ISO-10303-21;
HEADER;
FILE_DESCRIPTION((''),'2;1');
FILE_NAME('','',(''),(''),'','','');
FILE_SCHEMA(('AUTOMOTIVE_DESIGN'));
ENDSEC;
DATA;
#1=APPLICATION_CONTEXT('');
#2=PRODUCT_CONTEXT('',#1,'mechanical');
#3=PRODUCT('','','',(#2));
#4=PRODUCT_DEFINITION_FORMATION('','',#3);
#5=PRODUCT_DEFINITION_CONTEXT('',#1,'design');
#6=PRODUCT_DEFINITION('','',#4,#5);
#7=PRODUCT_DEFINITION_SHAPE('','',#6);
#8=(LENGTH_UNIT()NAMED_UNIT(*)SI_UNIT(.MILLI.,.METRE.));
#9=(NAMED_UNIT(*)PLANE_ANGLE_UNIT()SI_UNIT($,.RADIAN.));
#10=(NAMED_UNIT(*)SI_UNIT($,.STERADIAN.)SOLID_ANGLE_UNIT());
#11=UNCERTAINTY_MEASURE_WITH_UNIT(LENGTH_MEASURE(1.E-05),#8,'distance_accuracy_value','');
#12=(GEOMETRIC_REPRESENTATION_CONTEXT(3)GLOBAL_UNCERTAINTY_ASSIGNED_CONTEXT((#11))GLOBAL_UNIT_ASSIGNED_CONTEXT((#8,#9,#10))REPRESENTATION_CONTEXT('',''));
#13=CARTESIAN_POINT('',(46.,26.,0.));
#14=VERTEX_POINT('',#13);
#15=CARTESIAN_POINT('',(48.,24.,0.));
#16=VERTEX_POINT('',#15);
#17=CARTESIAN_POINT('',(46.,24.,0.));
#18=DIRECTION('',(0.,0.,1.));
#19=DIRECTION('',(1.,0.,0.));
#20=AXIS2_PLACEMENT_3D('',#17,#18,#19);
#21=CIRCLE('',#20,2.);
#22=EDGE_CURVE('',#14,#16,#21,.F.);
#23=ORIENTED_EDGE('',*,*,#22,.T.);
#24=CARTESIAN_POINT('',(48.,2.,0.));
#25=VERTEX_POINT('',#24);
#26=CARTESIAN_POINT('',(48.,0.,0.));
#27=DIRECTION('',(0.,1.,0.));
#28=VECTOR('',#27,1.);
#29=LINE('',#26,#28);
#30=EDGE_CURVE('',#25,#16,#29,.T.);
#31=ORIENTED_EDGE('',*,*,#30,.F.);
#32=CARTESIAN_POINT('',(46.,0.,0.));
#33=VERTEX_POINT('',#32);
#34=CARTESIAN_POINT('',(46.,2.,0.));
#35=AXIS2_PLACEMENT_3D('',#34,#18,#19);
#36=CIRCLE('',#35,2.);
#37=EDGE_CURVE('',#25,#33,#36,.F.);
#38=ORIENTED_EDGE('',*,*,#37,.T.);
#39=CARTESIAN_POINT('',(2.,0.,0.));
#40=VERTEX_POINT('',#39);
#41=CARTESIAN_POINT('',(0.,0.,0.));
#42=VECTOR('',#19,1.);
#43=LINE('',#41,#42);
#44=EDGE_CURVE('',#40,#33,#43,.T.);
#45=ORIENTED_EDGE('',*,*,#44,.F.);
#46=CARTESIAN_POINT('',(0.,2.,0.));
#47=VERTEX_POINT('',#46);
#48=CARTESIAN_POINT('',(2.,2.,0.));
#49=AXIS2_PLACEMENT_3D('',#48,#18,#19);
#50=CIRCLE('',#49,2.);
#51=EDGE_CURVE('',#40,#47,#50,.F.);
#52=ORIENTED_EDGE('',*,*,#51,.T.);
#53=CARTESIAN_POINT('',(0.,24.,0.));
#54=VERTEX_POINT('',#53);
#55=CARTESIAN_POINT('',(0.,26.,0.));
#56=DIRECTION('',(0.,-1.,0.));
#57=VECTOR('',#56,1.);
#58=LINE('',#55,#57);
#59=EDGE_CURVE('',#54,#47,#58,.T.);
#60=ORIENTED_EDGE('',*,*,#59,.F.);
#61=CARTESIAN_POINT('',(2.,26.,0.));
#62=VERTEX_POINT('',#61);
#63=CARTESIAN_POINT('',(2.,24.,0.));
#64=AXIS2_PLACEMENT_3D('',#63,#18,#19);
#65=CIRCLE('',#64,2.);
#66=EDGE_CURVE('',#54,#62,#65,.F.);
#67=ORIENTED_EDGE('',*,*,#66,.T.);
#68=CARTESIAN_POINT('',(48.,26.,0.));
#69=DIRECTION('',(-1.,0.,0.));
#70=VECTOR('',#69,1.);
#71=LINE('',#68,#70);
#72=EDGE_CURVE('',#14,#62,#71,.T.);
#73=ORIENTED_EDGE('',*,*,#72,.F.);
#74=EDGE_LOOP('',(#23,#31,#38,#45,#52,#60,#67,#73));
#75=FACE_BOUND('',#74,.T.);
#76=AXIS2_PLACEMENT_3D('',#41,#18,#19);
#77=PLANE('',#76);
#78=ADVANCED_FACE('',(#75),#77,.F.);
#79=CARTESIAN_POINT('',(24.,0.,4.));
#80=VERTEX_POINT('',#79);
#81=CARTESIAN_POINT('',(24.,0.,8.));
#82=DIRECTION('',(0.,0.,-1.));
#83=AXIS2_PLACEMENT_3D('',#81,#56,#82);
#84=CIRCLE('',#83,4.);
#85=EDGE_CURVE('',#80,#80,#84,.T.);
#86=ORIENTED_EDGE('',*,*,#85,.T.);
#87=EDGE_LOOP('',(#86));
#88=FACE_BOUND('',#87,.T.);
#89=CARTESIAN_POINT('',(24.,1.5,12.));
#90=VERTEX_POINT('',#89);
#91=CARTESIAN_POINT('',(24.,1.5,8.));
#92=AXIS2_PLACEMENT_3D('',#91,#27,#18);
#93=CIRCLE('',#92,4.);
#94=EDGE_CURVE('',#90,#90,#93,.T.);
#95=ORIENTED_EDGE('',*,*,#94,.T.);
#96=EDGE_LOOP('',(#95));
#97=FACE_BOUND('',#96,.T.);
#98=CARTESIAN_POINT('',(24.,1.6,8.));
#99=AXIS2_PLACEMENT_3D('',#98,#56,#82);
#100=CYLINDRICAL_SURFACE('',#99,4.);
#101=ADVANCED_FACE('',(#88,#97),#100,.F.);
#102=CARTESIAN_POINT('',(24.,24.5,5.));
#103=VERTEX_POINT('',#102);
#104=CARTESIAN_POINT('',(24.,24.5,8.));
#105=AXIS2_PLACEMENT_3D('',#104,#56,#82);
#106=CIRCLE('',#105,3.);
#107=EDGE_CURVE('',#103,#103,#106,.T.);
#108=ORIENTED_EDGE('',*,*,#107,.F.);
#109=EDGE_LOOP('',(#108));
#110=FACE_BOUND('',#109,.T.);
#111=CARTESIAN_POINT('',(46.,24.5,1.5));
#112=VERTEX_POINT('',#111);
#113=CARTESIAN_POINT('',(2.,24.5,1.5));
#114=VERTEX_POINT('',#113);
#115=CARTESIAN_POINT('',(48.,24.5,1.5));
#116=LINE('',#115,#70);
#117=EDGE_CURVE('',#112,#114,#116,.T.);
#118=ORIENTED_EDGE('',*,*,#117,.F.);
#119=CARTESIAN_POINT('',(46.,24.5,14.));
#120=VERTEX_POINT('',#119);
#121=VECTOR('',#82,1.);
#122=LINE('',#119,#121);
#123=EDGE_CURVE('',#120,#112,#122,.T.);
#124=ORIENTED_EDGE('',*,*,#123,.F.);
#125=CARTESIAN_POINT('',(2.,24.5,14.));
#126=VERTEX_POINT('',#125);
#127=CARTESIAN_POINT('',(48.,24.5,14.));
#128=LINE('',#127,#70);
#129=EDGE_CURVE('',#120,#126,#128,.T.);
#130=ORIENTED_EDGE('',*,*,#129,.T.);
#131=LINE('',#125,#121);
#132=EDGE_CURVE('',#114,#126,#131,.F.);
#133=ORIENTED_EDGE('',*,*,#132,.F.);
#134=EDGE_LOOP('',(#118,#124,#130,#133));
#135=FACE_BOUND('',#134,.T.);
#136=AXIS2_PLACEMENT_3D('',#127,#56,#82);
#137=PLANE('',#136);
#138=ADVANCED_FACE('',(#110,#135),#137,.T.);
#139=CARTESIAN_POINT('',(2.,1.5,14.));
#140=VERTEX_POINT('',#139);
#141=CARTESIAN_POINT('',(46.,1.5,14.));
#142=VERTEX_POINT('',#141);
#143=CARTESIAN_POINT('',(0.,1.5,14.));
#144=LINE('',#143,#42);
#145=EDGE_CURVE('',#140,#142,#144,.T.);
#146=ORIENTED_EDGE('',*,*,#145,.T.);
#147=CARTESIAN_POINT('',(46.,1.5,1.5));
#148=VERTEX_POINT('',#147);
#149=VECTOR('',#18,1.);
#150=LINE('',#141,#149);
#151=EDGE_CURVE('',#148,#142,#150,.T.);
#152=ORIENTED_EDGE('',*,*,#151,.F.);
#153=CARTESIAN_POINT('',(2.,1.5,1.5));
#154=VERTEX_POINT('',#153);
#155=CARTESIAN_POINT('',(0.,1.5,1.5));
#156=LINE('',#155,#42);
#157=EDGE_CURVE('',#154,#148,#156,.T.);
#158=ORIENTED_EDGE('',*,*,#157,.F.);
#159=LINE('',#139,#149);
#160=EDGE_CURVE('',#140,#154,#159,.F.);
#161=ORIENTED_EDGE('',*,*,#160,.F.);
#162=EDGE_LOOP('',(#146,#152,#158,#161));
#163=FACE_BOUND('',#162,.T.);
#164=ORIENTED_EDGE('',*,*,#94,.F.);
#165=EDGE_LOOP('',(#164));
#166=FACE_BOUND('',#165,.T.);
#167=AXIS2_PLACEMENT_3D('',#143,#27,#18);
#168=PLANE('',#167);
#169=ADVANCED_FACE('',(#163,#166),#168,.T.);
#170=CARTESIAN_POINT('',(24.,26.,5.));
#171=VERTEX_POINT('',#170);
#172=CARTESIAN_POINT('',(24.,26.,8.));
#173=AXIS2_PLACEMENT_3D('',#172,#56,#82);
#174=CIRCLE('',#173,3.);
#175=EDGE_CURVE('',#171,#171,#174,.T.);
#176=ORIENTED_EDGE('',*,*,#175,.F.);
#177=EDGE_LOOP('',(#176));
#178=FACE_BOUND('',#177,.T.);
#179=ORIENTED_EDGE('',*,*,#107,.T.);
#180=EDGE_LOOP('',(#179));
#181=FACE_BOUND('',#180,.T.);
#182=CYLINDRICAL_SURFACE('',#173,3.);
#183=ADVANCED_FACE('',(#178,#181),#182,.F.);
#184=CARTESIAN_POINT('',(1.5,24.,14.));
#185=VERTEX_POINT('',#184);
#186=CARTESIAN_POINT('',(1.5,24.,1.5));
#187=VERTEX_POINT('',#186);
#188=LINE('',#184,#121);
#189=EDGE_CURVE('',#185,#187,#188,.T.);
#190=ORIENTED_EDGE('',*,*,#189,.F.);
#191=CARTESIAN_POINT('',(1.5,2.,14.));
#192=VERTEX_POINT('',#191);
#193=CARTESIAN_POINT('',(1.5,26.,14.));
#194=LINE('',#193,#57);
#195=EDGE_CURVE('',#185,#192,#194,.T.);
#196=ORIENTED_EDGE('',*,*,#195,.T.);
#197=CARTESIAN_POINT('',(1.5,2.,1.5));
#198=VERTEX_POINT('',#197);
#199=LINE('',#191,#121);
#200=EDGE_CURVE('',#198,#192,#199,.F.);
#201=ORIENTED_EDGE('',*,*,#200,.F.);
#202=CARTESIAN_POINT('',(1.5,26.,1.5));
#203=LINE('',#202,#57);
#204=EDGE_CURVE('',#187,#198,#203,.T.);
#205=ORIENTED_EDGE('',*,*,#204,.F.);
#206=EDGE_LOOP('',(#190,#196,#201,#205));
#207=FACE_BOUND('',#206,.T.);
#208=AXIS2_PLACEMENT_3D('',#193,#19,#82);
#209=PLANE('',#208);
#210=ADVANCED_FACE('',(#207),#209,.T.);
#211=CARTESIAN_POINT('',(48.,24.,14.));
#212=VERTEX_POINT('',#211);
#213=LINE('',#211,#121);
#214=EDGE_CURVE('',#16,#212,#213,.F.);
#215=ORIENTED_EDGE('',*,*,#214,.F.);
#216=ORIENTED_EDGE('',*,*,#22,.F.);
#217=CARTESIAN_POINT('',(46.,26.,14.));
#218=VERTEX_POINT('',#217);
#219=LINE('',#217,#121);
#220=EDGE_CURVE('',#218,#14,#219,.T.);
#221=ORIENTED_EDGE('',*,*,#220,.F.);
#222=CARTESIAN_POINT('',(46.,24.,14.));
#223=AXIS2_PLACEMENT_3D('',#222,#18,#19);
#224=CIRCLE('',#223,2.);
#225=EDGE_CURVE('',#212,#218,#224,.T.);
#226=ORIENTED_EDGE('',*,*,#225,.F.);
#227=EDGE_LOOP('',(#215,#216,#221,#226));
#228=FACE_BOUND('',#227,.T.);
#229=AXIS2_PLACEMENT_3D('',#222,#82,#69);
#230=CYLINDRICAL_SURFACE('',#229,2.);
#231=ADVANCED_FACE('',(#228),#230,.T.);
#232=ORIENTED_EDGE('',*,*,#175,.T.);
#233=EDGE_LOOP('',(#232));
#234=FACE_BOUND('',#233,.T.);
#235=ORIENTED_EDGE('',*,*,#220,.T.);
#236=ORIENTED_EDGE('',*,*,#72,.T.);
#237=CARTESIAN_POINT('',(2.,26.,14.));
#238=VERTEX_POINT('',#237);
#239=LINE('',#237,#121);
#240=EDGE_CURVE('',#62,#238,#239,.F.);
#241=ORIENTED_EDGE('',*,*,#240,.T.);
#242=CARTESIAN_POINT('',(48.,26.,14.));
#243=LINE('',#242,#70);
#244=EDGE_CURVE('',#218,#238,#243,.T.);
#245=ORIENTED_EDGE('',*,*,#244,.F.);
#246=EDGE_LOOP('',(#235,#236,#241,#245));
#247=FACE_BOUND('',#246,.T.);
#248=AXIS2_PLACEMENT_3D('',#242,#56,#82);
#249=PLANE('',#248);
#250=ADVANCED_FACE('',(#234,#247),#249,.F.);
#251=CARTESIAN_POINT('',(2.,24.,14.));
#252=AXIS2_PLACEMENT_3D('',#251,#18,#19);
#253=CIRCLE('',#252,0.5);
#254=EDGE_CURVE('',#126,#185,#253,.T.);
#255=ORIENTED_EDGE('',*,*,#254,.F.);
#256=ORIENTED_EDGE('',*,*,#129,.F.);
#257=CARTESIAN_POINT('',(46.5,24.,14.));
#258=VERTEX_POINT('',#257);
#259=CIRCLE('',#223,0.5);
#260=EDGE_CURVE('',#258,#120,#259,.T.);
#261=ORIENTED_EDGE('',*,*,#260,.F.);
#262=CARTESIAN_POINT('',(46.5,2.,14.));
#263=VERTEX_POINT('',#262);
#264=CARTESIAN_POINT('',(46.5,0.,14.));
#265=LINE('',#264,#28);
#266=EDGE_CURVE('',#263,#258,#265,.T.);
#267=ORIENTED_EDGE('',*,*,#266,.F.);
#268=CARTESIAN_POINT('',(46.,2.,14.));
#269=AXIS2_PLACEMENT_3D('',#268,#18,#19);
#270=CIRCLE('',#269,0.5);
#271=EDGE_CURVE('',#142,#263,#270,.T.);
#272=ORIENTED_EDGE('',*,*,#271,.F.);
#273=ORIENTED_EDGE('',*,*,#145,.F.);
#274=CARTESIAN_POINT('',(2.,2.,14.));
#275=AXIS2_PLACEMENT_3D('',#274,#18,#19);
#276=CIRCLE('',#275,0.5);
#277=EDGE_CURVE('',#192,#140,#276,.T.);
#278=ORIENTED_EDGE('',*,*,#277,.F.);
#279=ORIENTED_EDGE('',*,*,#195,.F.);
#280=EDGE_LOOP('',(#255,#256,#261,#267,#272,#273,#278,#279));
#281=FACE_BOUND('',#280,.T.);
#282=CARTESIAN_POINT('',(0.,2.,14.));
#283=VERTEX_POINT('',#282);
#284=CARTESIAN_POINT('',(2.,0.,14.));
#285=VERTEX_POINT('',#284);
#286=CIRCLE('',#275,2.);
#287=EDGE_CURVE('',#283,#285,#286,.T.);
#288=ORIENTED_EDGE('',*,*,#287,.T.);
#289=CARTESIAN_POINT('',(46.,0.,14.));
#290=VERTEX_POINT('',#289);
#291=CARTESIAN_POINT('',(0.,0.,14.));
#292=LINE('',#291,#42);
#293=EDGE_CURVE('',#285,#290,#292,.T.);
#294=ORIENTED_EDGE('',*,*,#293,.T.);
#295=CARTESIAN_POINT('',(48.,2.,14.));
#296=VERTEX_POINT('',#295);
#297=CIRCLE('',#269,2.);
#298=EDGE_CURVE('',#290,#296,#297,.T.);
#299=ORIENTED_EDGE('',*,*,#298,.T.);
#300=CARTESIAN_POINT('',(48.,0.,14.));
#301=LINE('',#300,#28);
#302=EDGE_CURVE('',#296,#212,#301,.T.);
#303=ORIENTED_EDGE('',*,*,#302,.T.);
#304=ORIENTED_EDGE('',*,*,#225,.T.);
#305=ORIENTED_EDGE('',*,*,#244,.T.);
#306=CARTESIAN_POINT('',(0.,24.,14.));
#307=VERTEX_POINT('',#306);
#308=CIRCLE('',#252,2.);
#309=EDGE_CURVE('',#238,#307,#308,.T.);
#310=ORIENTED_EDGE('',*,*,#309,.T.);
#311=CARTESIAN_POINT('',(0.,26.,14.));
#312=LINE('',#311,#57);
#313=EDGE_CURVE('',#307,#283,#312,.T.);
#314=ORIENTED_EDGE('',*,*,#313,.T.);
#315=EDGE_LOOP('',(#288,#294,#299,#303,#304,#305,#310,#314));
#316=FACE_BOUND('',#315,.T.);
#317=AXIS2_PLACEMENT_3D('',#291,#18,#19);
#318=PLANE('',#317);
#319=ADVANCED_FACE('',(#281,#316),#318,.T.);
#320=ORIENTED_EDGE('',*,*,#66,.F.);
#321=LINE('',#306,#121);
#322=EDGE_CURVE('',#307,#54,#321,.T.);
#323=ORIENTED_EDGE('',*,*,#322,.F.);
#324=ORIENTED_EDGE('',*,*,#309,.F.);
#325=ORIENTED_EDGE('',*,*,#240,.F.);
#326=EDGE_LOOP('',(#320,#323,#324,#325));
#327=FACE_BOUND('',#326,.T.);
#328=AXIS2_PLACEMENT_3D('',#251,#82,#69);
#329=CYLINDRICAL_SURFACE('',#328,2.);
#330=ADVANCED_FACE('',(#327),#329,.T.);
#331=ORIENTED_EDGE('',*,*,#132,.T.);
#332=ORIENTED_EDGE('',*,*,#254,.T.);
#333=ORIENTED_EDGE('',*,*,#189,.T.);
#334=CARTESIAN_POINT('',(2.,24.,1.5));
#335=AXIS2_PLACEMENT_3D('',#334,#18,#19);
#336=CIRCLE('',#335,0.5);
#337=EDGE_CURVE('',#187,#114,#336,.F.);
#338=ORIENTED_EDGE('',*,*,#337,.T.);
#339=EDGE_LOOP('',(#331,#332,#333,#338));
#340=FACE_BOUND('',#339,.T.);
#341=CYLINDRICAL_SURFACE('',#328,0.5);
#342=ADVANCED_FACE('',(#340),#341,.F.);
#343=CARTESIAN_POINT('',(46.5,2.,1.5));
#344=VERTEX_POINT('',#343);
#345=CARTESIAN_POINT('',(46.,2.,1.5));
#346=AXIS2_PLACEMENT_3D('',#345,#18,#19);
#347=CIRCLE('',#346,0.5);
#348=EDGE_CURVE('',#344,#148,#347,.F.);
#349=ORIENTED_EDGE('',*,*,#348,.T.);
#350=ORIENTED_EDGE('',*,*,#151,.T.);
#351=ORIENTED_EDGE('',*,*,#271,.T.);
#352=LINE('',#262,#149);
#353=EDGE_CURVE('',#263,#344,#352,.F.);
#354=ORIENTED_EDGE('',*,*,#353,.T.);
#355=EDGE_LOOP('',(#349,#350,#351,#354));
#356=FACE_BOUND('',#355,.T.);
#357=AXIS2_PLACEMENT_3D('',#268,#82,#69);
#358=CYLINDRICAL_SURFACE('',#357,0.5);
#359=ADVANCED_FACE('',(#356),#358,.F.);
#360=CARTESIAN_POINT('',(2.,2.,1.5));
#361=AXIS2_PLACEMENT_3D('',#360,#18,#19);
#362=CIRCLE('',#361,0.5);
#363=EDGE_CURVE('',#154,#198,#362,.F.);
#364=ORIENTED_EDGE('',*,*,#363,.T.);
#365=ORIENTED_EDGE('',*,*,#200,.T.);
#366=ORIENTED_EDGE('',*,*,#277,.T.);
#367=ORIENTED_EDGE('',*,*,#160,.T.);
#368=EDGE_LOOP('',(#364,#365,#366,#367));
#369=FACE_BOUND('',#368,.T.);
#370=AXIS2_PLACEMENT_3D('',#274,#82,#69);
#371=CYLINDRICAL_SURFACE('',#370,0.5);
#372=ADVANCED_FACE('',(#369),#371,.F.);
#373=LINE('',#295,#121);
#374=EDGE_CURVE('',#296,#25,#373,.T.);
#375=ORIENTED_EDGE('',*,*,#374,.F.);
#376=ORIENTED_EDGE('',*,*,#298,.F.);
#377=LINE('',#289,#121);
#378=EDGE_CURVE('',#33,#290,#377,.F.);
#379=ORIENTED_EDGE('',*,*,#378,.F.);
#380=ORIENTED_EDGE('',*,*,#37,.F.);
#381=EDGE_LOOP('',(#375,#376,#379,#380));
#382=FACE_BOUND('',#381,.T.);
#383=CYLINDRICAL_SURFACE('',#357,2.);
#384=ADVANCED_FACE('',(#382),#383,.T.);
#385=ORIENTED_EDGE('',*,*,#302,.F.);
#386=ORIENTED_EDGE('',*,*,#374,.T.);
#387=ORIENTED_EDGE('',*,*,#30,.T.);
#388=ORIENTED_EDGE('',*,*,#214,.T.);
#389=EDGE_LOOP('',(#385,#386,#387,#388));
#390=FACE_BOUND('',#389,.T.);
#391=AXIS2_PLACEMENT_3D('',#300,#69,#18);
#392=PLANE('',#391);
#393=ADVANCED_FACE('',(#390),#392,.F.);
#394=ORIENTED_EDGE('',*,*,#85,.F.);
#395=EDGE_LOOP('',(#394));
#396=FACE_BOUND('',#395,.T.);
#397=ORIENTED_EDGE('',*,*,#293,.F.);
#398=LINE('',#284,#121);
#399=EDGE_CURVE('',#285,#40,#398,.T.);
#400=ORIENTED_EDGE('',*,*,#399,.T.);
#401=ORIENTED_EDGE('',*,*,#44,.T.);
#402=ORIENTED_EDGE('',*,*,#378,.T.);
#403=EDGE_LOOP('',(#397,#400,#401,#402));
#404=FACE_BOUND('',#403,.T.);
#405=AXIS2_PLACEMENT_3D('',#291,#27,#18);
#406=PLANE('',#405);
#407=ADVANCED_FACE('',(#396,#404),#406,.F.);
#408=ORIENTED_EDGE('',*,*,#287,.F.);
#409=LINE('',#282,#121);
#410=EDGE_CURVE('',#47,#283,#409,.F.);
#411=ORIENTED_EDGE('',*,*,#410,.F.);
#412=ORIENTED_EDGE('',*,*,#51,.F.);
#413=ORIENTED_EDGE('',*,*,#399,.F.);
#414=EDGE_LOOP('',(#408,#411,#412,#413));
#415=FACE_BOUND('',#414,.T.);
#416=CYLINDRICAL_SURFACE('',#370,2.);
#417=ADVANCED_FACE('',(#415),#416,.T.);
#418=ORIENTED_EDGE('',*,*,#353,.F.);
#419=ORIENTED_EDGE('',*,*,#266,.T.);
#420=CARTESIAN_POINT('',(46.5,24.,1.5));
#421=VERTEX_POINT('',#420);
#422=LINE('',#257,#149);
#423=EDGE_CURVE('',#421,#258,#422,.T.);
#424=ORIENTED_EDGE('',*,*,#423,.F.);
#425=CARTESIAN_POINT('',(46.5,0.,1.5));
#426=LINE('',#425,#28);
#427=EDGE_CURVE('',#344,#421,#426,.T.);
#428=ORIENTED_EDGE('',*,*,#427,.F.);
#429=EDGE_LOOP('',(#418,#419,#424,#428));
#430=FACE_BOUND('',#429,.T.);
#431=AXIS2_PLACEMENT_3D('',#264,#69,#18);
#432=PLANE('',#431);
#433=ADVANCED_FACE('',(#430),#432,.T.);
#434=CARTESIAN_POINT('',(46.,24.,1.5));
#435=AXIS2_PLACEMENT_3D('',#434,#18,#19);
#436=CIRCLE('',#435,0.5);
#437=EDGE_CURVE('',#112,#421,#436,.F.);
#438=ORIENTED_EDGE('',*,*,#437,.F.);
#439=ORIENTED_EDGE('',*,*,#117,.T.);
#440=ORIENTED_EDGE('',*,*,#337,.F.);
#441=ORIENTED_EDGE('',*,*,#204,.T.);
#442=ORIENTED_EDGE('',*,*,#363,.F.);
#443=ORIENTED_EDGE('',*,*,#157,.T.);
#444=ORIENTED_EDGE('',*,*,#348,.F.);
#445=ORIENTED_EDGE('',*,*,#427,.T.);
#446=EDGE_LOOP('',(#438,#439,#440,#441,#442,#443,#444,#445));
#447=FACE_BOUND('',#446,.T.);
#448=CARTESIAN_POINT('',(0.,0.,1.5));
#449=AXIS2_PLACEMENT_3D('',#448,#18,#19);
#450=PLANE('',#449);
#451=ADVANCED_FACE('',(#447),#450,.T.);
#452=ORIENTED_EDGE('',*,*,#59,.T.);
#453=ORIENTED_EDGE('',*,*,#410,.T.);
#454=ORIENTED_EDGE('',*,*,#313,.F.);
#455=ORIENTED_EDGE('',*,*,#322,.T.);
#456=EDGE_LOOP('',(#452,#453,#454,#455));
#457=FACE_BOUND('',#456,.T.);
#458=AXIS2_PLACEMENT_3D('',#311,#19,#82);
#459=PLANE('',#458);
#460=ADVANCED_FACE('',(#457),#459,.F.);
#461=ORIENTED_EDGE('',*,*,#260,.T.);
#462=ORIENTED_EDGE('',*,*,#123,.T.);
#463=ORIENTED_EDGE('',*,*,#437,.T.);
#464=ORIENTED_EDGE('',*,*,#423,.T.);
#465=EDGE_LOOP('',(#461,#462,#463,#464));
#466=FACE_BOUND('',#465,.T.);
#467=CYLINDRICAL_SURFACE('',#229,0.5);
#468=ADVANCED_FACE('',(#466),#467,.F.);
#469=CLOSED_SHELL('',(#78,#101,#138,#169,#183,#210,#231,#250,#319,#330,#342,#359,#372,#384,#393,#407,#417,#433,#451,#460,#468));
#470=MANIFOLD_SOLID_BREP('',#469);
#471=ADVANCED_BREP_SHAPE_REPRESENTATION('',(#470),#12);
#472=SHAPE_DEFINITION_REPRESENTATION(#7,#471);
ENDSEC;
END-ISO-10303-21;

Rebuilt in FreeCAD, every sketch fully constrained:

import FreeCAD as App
import Part
import Sketcher
Q = App.Units.Quantity


def edges_at(feature, points):
    """Names of the edges that pass closest to the given points."""
    edges = feature.Shape.Edges
    near = lambda p: min(range(len(edges)), key=lambda i: edges[i].distToShape(Part.Vertex(*p))[0])
    return sorted({f"Edge{near(p) + 1}" for p in points})


def faces_at(feature, points):
    """Names of the faces that lie closest to the given points."""
    faces = feature.Shape.Faces
    near = lambda p: min(range(len(faces)), key=lambda i: faces[i].distToShape(Part.Vertex(*p))[0])
    return sorted({f"Face{near(p) + 1}" for p in points})


def add_polygon(sketch, points):
    """Adds a closed chain of lines whose ends are joined by coincident constraints."""
    first, n = sketch.GeometryCount, len(points)
    for a, b in zip(points, points[1:] + points[:1]):
        sketch.addGeometry(Part.LineSegment(App.Vector(*a, 0), App.Vector(*b, 0)), False)
    for i in range(n):
        sketch.addConstraint(Sketcher.Constraint("Coincident", first + i, 2, first + (i + 1) % n, 1))

doc = App.newDocument("Part")
params = doc.addObject("Spreadsheet::Sheet", "Params")
for row, (alias, value) in enumerate([
    ("sketch1_width", "48 mm"),
    ("sketch1_height", "26 mm"),
    ("pad1_length", "14 mm"),
    ("fillet_radius", "2 mm"),
    ("thickness_wall", "1.5 mm"),
    ("sketch2_diameter", "6 mm"),
    ("sketch3_diameter", "8 mm"),
    ("pocket2_length", "1.6 mm"),
], start=1):
    params.set(f"A{row}", alias)
    params.set(f"B{row}", "=" + value)
    params.setAlias(f"B{row}", alias)

body = doc.addObject("PartDesign::Body", "Body")

sketch1 = body.newObject("Sketcher::SketchObject", "Sketch")
sketch1.AttachmentSupport = (doc.getObject("XY_Plane"), [""])
sketch1.MapMode = "FlatFace"
add_polygon(sketch1, [(0, 26), (0, 0), (48, 0), (48, 26)])
sketch1.addConstraint([
    Sketcher.Constraint("Vertical", 0),
    Sketcher.Constraint("Horizontal", 1),
    Sketcher.Constraint("Vertical", 2),
    Sketcher.Constraint("Horizontal", 3),
    Sketcher.Constraint("Coincident", 0, 2, -1, 1),
    Sketcher.Constraint("DistanceX", 1, 1, 1, 2, Q("48 mm")),
    Sketcher.Constraint("DistanceY", 0, 2, 0, 1, Q("26 mm")),
])
sketch1.setExpression("Constraints[9]", "Params.sketch1_width")
sketch1.setExpression("Constraints[10]", "Params.sketch1_height")
pad1 = body.newObject("PartDesign::Pad", "Pad")
pad1.Profile = sketch1
pad1.setExpression("Length", "Params.pad1_length")
doc.recompute()

fillet = body.newObject("PartDesign::Fillet", "Fillet")
fillet.Base = (pad1, edges_at(pad1, [
    (0, 26, 7),
    (48, 26, 7),
    (48, 0, 7),
    (0, 0, 7),
]))
fillet.setExpression("Radius", "Params.fillet_radius")
doc.recompute()

thickness = body.newObject("PartDesign::Thickness", "Thickness")
thickness.Base = (fillet, faces_at(fillet, [(24, 13, 14)]))
thickness.setExpression("Value", "Params.thickness_wall")
thickness.Reversed = True
thickness.Join = "Intersection"

sketch2 = body.newObject("Sketcher::SketchObject", "Sketch001")
sketch2.AttachmentSupport = (doc.getObject("XZ_Plane"), [""])
sketch2.MapMode = "FlatFace"
sketch2.addGeometry(Part.Circle(App.Vector(24, 8, 0), App.Vector(0, 0, 1), 3), False)
sketch2.addConstraint([
    Sketcher.Constraint("Diameter", 0, Q("6 mm")),
    Sketcher.Constraint("DistanceX", -1, 1, 0, 3, Q("24 mm")),
    Sketcher.Constraint("DistanceY", -1, 1, 0, 3, Q("8 mm")),
])
sketch2.setExpression("Constraints[0]", "Params.sketch2_diameter")
pocket1 = body.newObject("PartDesign::Pocket", "Pocket")
pocket1.Profile = sketch2
pocket1.Type = "ThroughAll"

sketch3 = body.newObject("Sketcher::SketchObject", "Sketch002")
sketch3.AttachmentSupport = (doc.getObject("XZ_Plane"), [""])
sketch3.MapMode = "FlatFace"
sketch3.addGeometry(Part.Circle(App.Vector(24, 8, 0), App.Vector(0, 0, 1), 4), False)
sketch3.addConstraint([
    Sketcher.Constraint("Diameter", 0, Q("8 mm")),
    Sketcher.Constraint("DistanceX", -1, 1, 0, 3, Q("24 mm")),
    Sketcher.Constraint("DistanceY", -1, 1, 0, 3, Q("8 mm")),
])
sketch3.setExpression("Constraints[0]", "Params.sketch3_diameter")
pocket2 = body.newObject("PartDesign::Pocket", "Pocket001")
pocket2.Profile = sketch3
pocket2.setExpression("Length", "Params.pocket2_length")

doc.recompute()
